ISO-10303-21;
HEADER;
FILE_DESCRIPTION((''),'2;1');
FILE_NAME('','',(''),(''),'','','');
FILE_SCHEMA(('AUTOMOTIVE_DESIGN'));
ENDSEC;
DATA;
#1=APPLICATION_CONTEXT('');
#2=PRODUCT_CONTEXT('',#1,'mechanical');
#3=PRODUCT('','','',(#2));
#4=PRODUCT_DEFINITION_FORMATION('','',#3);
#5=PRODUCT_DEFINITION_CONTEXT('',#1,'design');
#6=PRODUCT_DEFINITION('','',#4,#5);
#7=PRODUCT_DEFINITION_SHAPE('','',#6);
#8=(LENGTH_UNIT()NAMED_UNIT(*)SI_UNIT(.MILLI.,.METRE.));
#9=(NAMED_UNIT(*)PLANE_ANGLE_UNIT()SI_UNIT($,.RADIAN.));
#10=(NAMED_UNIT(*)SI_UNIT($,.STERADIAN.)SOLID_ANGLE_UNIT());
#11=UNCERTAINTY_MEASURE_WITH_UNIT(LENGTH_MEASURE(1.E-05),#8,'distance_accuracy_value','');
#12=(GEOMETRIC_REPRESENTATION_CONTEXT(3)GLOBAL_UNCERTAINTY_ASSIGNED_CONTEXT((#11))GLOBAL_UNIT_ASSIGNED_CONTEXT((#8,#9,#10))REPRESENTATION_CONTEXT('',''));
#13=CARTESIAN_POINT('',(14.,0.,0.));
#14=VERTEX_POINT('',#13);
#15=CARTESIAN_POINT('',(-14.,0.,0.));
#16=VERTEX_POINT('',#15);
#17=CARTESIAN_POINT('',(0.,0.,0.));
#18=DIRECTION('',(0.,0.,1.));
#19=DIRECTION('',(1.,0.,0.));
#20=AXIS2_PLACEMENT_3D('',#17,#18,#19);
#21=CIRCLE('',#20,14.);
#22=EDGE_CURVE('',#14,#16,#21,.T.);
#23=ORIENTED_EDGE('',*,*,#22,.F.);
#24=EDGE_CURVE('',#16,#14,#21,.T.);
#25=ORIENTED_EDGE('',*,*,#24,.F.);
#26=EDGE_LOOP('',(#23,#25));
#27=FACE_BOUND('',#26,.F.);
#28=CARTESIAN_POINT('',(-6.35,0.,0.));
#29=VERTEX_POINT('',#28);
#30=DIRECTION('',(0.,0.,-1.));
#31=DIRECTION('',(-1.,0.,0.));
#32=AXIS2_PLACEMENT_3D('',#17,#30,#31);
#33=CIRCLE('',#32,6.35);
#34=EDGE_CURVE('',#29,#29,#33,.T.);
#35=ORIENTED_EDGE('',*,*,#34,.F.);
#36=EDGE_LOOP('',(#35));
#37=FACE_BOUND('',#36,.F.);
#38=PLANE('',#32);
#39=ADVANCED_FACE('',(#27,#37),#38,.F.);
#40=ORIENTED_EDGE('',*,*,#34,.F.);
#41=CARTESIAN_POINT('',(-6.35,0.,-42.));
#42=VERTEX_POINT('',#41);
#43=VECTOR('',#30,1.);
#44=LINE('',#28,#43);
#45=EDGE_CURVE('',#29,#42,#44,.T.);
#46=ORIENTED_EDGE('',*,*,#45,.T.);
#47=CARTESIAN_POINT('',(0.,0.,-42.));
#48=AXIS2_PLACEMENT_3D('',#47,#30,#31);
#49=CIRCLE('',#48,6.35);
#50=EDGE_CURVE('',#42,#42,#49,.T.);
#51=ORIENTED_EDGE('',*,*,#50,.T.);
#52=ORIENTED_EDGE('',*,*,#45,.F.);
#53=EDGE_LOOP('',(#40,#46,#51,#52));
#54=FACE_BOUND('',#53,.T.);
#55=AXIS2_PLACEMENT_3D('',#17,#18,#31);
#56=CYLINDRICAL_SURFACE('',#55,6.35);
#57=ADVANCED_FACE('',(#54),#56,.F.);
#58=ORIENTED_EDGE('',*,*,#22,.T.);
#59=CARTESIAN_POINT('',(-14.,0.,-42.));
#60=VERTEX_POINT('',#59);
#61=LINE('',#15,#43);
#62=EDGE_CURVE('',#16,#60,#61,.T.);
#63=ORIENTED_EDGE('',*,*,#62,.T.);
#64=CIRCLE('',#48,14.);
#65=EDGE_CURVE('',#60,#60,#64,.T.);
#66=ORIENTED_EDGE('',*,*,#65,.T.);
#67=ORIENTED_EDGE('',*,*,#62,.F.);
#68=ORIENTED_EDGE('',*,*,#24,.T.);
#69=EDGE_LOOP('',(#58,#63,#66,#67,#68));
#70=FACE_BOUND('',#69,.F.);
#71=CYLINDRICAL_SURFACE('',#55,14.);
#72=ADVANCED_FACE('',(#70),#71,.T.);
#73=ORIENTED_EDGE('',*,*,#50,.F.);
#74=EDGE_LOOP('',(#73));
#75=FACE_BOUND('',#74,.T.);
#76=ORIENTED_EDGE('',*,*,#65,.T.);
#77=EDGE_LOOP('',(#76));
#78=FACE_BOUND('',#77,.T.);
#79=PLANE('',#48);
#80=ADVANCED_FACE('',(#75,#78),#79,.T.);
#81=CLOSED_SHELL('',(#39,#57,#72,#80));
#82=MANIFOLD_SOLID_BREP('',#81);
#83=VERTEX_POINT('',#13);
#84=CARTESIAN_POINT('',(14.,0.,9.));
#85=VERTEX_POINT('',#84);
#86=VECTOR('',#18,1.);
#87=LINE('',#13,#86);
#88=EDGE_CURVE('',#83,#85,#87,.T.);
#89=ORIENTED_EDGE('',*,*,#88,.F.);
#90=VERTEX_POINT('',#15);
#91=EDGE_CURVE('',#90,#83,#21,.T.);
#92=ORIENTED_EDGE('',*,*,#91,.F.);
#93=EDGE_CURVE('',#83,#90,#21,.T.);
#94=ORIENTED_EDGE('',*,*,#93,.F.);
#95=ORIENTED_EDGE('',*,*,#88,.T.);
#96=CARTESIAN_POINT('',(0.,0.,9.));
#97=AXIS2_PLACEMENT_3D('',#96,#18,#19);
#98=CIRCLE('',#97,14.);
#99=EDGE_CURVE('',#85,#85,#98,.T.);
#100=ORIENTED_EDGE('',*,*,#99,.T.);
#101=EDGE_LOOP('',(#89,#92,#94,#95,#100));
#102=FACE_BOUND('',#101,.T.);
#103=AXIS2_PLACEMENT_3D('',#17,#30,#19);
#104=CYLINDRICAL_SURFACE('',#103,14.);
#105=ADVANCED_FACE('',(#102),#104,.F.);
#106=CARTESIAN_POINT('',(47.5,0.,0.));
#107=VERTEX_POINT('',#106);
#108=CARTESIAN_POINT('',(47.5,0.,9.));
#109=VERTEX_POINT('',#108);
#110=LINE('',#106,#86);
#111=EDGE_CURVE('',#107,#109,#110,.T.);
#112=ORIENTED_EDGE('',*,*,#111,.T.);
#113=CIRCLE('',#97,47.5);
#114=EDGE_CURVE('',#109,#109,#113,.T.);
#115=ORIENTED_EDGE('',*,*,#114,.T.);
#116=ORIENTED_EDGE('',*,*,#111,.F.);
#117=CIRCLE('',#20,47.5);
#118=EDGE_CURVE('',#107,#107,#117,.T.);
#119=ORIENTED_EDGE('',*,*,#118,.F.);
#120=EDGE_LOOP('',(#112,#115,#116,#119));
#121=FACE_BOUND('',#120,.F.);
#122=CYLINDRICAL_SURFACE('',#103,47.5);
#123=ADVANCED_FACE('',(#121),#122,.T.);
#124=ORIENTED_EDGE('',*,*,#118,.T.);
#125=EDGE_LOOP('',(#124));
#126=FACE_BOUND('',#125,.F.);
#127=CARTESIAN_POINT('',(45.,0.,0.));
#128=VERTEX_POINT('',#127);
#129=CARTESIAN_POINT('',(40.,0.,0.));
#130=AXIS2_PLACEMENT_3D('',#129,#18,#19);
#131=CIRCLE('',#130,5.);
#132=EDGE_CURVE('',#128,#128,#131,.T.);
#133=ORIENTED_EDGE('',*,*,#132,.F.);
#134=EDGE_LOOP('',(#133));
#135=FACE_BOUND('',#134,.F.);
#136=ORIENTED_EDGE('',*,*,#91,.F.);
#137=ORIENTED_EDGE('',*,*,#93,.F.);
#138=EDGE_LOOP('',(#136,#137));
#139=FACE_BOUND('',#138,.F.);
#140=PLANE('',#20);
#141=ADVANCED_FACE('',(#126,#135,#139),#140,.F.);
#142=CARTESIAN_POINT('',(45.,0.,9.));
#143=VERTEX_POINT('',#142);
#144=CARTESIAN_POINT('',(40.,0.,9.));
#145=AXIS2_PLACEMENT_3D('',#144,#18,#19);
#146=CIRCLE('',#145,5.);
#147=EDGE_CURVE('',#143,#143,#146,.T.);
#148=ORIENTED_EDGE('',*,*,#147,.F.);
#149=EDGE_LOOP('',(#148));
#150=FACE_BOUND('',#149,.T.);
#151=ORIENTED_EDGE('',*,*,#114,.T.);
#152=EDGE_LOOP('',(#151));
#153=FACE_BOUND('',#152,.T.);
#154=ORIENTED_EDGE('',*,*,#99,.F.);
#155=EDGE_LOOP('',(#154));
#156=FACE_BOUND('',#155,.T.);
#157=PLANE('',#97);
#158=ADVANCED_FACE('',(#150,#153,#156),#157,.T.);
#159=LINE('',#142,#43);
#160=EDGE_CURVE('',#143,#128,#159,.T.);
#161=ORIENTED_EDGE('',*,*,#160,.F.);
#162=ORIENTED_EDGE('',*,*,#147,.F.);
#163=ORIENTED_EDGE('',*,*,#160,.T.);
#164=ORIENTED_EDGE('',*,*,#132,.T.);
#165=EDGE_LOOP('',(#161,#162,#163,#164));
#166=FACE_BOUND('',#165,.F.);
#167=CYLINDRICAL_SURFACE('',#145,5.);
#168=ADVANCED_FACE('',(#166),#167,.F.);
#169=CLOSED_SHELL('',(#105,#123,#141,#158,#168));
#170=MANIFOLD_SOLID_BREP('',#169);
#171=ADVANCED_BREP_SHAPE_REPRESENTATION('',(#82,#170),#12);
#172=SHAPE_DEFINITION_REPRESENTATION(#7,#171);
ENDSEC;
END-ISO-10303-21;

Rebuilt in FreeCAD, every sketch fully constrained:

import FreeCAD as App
import Part
import Sketcher

V = App.Vector
Q = App.Units.Quantity

doc = App.newDocument("Part")
body = doc.addObject("PartDesign::Body", "Body")
body.AllowCompound = True

sketch1 = body.newObject("Sketcher::SketchObject", "Sketch")
sketch1.AttachmentSupport = (doc.getObject("XY_Plane"), [""])
sketch1.MapMode = "FlatFace"
sketch1.addGeometry(Part.Circle(V(0, 0, 0), V(0, 0, 1), 48), False)
sketch1.addGeometry(Part.Circle(V(0, 0, 0), V(0, 0, 1), 14), False)
sketch1.addConstraint(Sketcher.Constraint("Coincident", 0, 3, -1, 1))
sketch1.addConstraint(Sketcher.Constraint("Coincident", 1, 3, -1, 1))
sketch1.addConstraint(Sketcher.Constraint("Diameter", 0, Q("95 mm")))
sketch1.addConstraint(Sketcher.Constraint("Diameter", 1, Q("28 mm")))
pad1 = body.newObject("PartDesign::Pad", "Pad")
pad1.Profile = sketch1
pad1.Length = 9

sketch2 = body.newObject("Sketcher::SketchObject", "Sketch001")
sketch2.AttachmentSupport = (doc.getObject("XY_Plane"), [""])
sketch2.MapMode = "FlatFace"
sketch2.addGeometry(Part.Circle(V(0, 0, 0), V(0, 0, 1), 14), False)
sketch2.addGeometry(Part.Circle(V(0, 0, 0), V(0, 0, 1), 6), False)
sketch2.addConstraint(Sketcher.Constraint("Coincident", 0, 3, -1, 1))
sketch2.addConstraint(Sketcher.Constraint("Coincident", 1, 3, -1, 1))
sketch2.addConstraint(Sketcher.Constraint("Diameter", 0, Q("28 mm")))
sketch2.addConstraint(Sketcher.Constraint("Diameter", 1, Q("12.7 mm")))
pad2 = body.newObject("PartDesign::Pad", "Pad001")
pad2.Profile = sketch2
pad2.Length = 42
pad2.Reversed = True

sketch3 = body.newObject("Sketcher::SketchObject", "Sketch002")
sketch3.AttachmentSupport = (doc.getObject("XY_Plane"), [""])
sketch3.MapMode = "FlatFace"
sketch3.addGeometry(Part.Circle(V(-35, 0, 0), V(0, 0, 1), 5), False)
sketch3.addConstraint(Sketcher.Constraint("PointOnObject", 0, 3, -1))
sketch3.addConstraint(Sketcher.Constraint("Diameter", 0, Q("10 mm")))
sketch3.addConstraint(Sketcher.Constraint("DistanceX", 0, 3, -1, 1, Q("35 mm")))
pocket1 = body.newObject("PartDesign::Pocket", "Pocket")
pocket1.Profile = sketch3
pocket1.Length = 9

sketch4 = body.newObject("Sketcher::SketchObject", "Sketch003")
sketch4.AttachmentSupport = (doc.getObject("XY_Plane"), [""])
sketch4.MapMode = "FlatFace"
sketch4.AttachmentOffset = App.Placement(V(0, 0, 9), App.Rotation())
sketch4.addGeometry(Part.Circle(V(40, 0, 0), V(0, 0, 1), 3.5), False)
sketch4.addConstraint(Sketcher.Constraint("PointOnObject", 0, 3, -1))
sketch4.addConstraint(Sketcher.Constraint("Diameter", 0, Q("7 mm")))
sketch4.addConstraint(Sketcher.Constraint("DistanceX", -1, 1, 0, 3, Q("40 mm")))
pocket2 = body.newObject("PartDesign::Pocket", "Pocket001")
pocket2.Profile = sketch4
pocket2.Length = 9

sketch5 = body.newObject("Sketcher::SketchObject", "Sketch004")
sketch5.AttachmentSupport = (doc.getObject("XY_Plane"), [""])
sketch5.MapMode = "FlatFace"
sketch5.AttachmentOffset = App.Placement(V(0, 0, 9), App.Rotation())
sketch5.addGeometry(Part.Circle(V(40, 0, 0), V(0, 0, 1), 5), False)
sketch5.addConstraint(Sketcher.Constraint("PointOnObject", 0, 3, -1))
sketch5.addConstraint(Sketcher.Constraint("Diameter", 0, Q("10 mm")))
sketch5.addConstraint(Sketcher.Constraint("DistanceX", -1, 1, 0, 3, Q("40 mm")))
pocket3 = body.newObject("PartDesign::Pocket", "Pocket002")
pocket3.Profile = sketch5
pocket3.Length = 9

doc.recompute()
